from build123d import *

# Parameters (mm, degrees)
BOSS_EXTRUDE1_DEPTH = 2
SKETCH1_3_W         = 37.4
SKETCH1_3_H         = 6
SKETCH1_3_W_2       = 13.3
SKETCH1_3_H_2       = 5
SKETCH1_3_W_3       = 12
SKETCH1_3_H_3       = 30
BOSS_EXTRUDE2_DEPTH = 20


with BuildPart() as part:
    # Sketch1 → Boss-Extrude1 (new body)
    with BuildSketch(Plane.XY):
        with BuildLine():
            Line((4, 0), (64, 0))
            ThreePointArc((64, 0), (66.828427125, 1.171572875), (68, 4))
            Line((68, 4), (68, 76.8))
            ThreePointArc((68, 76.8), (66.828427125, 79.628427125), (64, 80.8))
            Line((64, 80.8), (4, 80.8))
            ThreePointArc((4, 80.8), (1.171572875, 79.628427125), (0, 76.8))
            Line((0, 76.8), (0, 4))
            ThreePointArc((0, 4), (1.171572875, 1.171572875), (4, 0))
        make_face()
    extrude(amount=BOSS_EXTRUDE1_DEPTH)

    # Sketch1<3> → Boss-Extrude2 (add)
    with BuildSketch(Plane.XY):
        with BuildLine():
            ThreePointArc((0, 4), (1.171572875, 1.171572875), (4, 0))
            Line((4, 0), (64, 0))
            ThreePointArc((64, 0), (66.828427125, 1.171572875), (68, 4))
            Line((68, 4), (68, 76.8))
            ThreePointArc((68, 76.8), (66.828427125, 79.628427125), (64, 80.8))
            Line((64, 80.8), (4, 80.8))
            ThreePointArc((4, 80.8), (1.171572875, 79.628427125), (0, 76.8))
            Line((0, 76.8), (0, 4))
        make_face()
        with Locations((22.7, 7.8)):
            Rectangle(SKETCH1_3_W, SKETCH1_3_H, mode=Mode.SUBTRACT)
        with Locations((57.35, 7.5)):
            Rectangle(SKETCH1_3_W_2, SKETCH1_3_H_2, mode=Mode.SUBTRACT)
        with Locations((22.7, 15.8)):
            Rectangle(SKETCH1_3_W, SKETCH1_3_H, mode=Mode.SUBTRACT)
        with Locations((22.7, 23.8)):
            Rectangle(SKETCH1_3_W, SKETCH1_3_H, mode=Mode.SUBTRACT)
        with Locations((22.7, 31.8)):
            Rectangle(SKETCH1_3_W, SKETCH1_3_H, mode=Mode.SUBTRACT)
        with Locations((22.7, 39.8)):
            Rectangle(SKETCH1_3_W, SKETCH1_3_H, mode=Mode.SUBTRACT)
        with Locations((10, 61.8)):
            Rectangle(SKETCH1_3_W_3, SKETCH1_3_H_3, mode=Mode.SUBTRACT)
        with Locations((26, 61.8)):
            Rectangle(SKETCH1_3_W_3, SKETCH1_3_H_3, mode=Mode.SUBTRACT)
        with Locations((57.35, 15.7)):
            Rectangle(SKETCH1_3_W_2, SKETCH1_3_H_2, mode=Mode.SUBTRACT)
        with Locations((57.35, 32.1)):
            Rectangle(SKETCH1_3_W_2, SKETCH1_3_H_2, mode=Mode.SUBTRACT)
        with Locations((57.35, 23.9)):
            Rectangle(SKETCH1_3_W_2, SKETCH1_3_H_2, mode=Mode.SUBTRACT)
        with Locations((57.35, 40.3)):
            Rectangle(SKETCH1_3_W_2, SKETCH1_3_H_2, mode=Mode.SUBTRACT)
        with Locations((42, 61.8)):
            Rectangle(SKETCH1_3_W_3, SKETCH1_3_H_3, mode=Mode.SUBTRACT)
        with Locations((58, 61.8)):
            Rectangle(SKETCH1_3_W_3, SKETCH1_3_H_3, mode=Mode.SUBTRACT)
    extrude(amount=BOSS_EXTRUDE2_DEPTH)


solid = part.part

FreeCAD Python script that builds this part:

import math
import FreeCAD as App
import Part
import Sketcher

V = App.Vector
Q = App.Units.Quantity

doc = App.newDocument("Part")
params = doc.addObject("Spreadsheet::Sheet", "Params")
for row, (alias, value) in enumerate([
    ("sketch1_radius", "4 mm"),
    ("sketch1_width", "60 mm"),
    ("sketch1_height", "72.8 mm"),
    ("pad1_length", "2 mm"),
    ("sketch2_radius", "4 mm"),
    ("sketch2_width", "60 mm"),
    ("sketch2_width2", "12 mm"),
    ("sketch2_height", "6 mm"),
    ("sketch2_height2", "5 mm"),
    ("pad2_length", "20 mm"),
], start=1):
    params.set(f"A{row}", alias)
    params.set(f"B{row}", "=" + value)
    params.setAlias(f"B{row}", alias)

body = doc.addObject("PartDesign::Body", "Body")

sketch1 = doc.addObject("Sketcher::SketchObject", "Sketch")
body.addObject(sketch1)
sketch1.AttachmentSupport = (doc.XY_Plane, [""])
sketch1.MapMode = "FlatFace"
sketch1.addGeometry(Part.LineSegment(V(4, 0, 0), V(64, 0, 0)), False)
sketch1.addGeometry(Part.ArcOfCircle(Part.Circle(V(64, 4, 0), V(0, 0, 1), 4), math.radians(-90), math.radians(0)), False)
sketch1.addGeometry(Part.LineSegment(V(68, 4, 0), V(68, 76.8, 0)), False)
sketch1.addGeometry(Part.ArcOfCircle(Part.Circle(V(64, 76.8, 0), V(0, 0, 1), 4), math.radians(0), math.radians(90)), False)
sketch1.addGeometry(Part.LineSegment(V(64, 80.8, 0), V(4, 80.8, 0)), False)
sketch1.addGeometry(Part.ArcOfCircle(Part.Circle(V(4, 76.8, 0), V(0, 0, 1), 4), math.radians(90), math.radians(180)), False)
sketch1.addGeometry(Part.LineSegment(V(0, 76.8, 0), V(0, 4, 0)), False)
sketch1.addGeometry(Part.ArcOfCircle(Part.Circle(V(4, 4, 0), V(0, 0, 1), 4), math.radians(180), math.radians(270)), False)
sketch1.addConstraint(Sketcher.Constraint("Tangent", 0, 2, 1, 1))
sketch1.addConstraint(Sketcher.Constraint("Tangent", 1, 2, 2, 1))
sketch1.addConstraint(Sketcher.Constraint("Tangent", 2, 2, 3, 1))
sketch1.addConstraint(Sketcher.Constraint("Tangent", 3, 2, 4, 1))
sketch1.addConstraint(Sketcher.Constraint("Tangent", 4, 2, 5, 1))
sketch1.addConstraint(Sketcher.Constraint("Tangent", 5, 2, 6, 1))
sketch1.addConstraint(Sketcher.Constraint("Tangent", 6, 2, 7, 1))
sketch1.addConstraint(Sketcher.Constraint("Tangent", 7, 2, 0, 1))
sketch1.addConstraint(Sketcher.Constraint("Horizontal", 0))
sketch1.addConstraint(Sketcher.Constraint("Vertical", 2))
sketch1.addConstraint(Sketcher.Constraint("Horizontal", 4))
sketch1.addConstraint(Sketcher.Constraint("Vertical", 6))
sketch1.addConstraint(Sketcher.Constraint("Equal", 1, 3))
sketch1.addConstraint(Sketcher.Constraint("Equal", 3, 5))
sketch1.addConstraint(Sketcher.Constraint("Equal", 5, 7))
sketch1.addConstraint(Sketcher.Constraint("PointOnObject", 0, 2, -1))
sketch1.addConstraint(Sketcher.Constraint("PointOnObject", 5, 2, -2))
sketch1.addConstraint(Sketcher.Constraint("Radius", 1, Q("4 mm")))
sketch1.addConstraint(Sketcher.Constraint("DistanceX", 0, 1, 0, 2, Q("60 mm")))
sketch1.addConstraint(Sketcher.Constraint("DistanceY", 2, 1, 2, 2, Q("72.8 mm")))
sketch1.setExpression("Constraints[17]", "Params.sketch1_radius")
sketch1.setExpression("Constraints[18]", "Params.sketch1_width")
sketch1.setExpression("Constraints[19]", "Params.sketch1_height")
pad1 = doc.addObject("PartDesign::Pad", "Pad")
body.addObject(pad1)
pad1.Profile = sketch1
pad1.setExpression("Length", "Params.pad1_length")

sketch2 = doc.addObject("Sketcher::SketchObject", "Sketch001")
body.addObject(sketch2)
sketch2.AttachmentSupport = (doc.XY_Plane, [""])
sketch2.MapMode = "FlatFace"
sketch2.addGeometry(Part.ArcOfCircle(Part.Circle(V(4, 4, 0), V(0, 0, 1), 4), math.radians(180), math.radians(270)), False)
sketch2.addGeometry(Part.LineSegment(V(4, 0, 0), V(64, 0, 0)), False)
sketch2.addGeometry(Part.ArcOfCircle(Part.Circle(V(64, 4, 0), V(0, 0, 1), 4), math.radians(-90), math.radians(0)), False)
sketch2.addGeometry(Part.LineSegment(V(68, 4, 0), V(68, 76.8, 0)), False)
sketch2.addGeometry(Part.ArcOfCircle(Part.Circle(V(64, 76.8, 0), V(0, 0, 1), 4), math.radians(0), math.radians(90)), False)
sketch2.addGeometry(Part.LineSegment(V(64, 80.8, 0), V(4, 80.8, 0)), False)
sketch2.addGeometry(Part.ArcOfCircle(Part.Circle(V(4, 76.8, 0), V(0, 0, 1), 4), math.radians(90), math.radians(180)), False)
sketch2.addGeometry(Part.LineSegment(V(0, 76.8, 0), V(0, 4, 0)), False)
sketch2.addGeometry(Part.LineSegment(V(41.4, 4.8, 0), V(4, 4.8, 0)), False)
sketch2.addGeometry(Part.LineSegment(V(4, 4.8, 0), V(4, 10.8, 0)), False)
sketch2.addGeometry(Part.LineSegment(V(4, 10.8, 0), V(41.4, 10.8, 0)), False)
sketch2.addGeometry(Part.LineSegment(V(41.4, 10.8, 0), V(41.4, 4.8, 0)), False)
sketch2.addGeometry(Part.LineSegment(V(41.4, 12.8, 0), V(4, 12.8, 0)), False)
sketch2.addGeometry(Part.LineSegment(V(4, 12.8, 0), V(4, 18.8, 0)), False)
sketch2.addGeometry(Part.LineSegment(V(4, 18.8, 0), V(41.4, 18.8, 0)), False)
sketch2.addGeometry(Part.LineSegment(V(41.4, 18.8, 0), V(41.4, 12.8, 0)), False)
sketch2.addGeometry(Part.LineSegment(V(41.4, 20.8, 0), V(4, 20.8, 0)), False)
sketch2.addGeometry(Part.LineSegment(V(4, 20.8, 0), V(4, 26.8, 0)), False)
sketch2.addGeometry(Part.LineSegment(V(4, 26.8, 0), V(41.4, 26.8, 0)), False)
sketch2.addGeometry(Part.LineSegment(V(41.4, 26.8, 0), V(41.4, 20.8, 0)), False)
sketch2.addGeometry(Part.LineSegment(V(41.4, 28.8, 0), V(4, 28.8, 0)), False)
sketch2.addGeometry(Part.LineSegment(V(4, 28.8, 0), V(4, 34.8, 0)), False)
sketch2.addGeometry(Part.LineSegment(V(4, 34.8, 0), V(41.4, 34.8, 0)), False)
sketch2.addGeometry(Part.LineSegment(V(41.4, 34.8, 0), V(41.4, 28.8, 0)), False)
sketch2.addGeometry(Part.LineSegment(V(41.4, 36.8, 0), V(4, 36.8, 0)), False)
sketch2.addGeometry(Part.LineSegment(V(4, 36.8, 0), V(4, 42.8, 0)), False)
sketch2.addGeometry(Part.LineSegment(V(4, 42.8, 0), V(41.4, 42.8, 0)), False)
sketch2.addGeometry(Part.LineSegment(V(41.4, 42.8, 0), V(41.4, 36.8, 0)), False)
sketch2.addGeometry(Part.LineSegment(V(64, 5, 0), V(50.7, 5, 0)), False)
sketch2.addGeometry(Part.LineSegment(V(50.7, 5, 0), V(50.7, 10, 0)), False)
sketch2.addGeometry(Part.LineSegment(V(50.7, 10, 0), V(64, 10, 0)), False)
sketch2.addGeometry(Part.LineSegment(V(64, 10, 0), V(64, 5, 0)), False)
sketch2.addGeometry(Part.LineSegment(V(64, 13.2, 0), V(50.7, 13.2, 0)), False)
sketch2.addGeometry(Part.LineSegment(V(50.7, 13.2, 0), V(50.7, 18.2, 0)), False)
sketch2.addGeometry(Part.LineSegment(V(50.7, 18.2, 0), V(64, 18.2, 0)), False)
sketch2.addGeometry(Part.LineSegment(V(64, 18.2, 0), V(64, 13.2, 0)), False)
sketch2.addGeometry(Part.LineSegment(V(64, 21.4, 0), V(50.7, 21.4, 0)), False)
sketch2.addGeometry(Part.LineSegment(V(50.7, 21.4, 0), V(50.7, 26.4, 0)), False)
sketch2.addGeometry(Part.LineSegment(V(50.7, 26.4, 0), V(64, 26.4, 0)), False)
sketch2.addGeometry(Part.LineSegment(V(64, 26.4, 0), V(64, 21.4, 0)), False)
sketch2.addGeometry(Part.LineSegment(V(64, 29.6, 0), V(50.7, 29.6, 0)), False)
sketch2.addGeometry(Part.LineSegment(V(50.7, 29.6, 0), V(50.7, 34.6, 0)), False)
sketch2.addGeometry(Part.LineSegment(V(50.7, 34.6, 0), V(64, 34.6, 0)), False)
sketch2.addGeometry(Part.LineSegment(V(64, 34.6, 0), V(64, 29.6, 0)), False)
sketch2.addGeometry(Part.LineSegment(V(64, 37.8, 0), V(50.7, 37.8, 0)), False)
sketch2.addGeometry(Part.LineSegment(V(50.7, 37.8, 0), V(50.7, 42.8, 0)), False)
sketch2.addGeometry(Part.LineSegment(V(50.7, 42.8, 0), V(64, 42.8, 0)), False)
sketch2.addGeometry(Part.LineSegment(V(64, 42.8, 0), V(64, 37.8, 0)), False)
sketch2.addGeometry(Part.LineSegment(V(16, 46.8, 0), V(4, 46.8, 0)), False)
sketch2.addGeometry(Part.LineSegment(V(4, 46.8, 0), V(4, 76.8, 0)), False)
sketch2.addGeometry(Part.LineSegment(V(4, 76.8, 0), V(16, 76.8, 0)), False)
sketch2.addGeometry(Part.LineSegment(V(16, 76.8, 0), V(16, 46.8, 0)), False)
sketch2.addGeometry(Part.LineSegment(V(32, 46.8, 0), V(20, 46.8, 0)), False)
sketch2.addGeometry(Part.LineSegment(V(20, 46.8, 0), V(20, 76.8, 0)), False)
sketch2.addGeometry(Part.LineSegment(V(20, 76.8, 0), V(32, 76.8, 0)), False)
sketch2.addGeometry(Part.LineSegment(V(32, 76.8, 0), V(32, 46.8, 0)), False)
sketch2.addGeometry(Part.LineSegment(V(48, 46.8, 0), V(36, 46.8, 0)), False)
sketch2.addGeometry(Part.LineSegment(V(36, 46.8, 0), V(36, 76.8, 0)), False)
sketch2.addGeometry(Part.LineSegment(V(36, 76.8, 0), V(48, 76.8, 0)), False)
sketch2.addGeometry(Part.LineSegment(V(48, 76.8, 0), V(48, 46.8, 0)), False)
sketch2.addGeometry(Part.LineSegment(V(64, 46.8, 0), V(52, 46.8, 0)), False)
sketch2.addGeometry(Part.LineSegment(V(52, 46.8, 0), V(52, 76.8, 0)), False)
sketch2.addGeometry(Part.LineSegment(V(52, 76.8, 0), V(64, 76.8, 0)), False)
sketch2.addGeometry(Part.LineSegment(V(64, 76.8, 0), V(64, 46.8, 0)), False)
sketch2.addConstraint(Sketcher.Constraint("Tangent", 0, 2, 1, 1))
sketch2.addConstraint(Sketcher.Constraint("Tangent", 1, 2, 2, 1))
sketch2.addConstraint(Sketcher.Constraint("Tangent", 2, 2, 3, 1))
sketch2.addConstraint(Sketcher.Constraint("Tangent", 3, 2, 4, 1))
sketch2.addConstraint(Sketcher.Constraint("Tangent", 4, 2, 5, 1))
sketch2.addConstraint(Sketcher.Constraint("Tangent", 5, 2, 6, 1))
sketch2.addConstraint(Sketcher.Constraint("Tangent", 6, 2, 7, 1))
sketch2.addConstraint(Sketcher.Constraint("Tangent", 7, 2, 0, 1))
sketch2.addConstraint(Sketcher.Constraint("Coincident", 8, 2, 9, 1))
sketch2.addConstraint(Sketcher.Constraint("Coincident", 9, 2, 10, 1))
sketch2.addConstraint(Sketcher.Constraint("Coincident", 10, 2, 11, 1))
sketch2.addConstraint(Sketcher.Constraint("Coincident", 11, 2, 8, 1))
sketch2.addConstraint(Sketcher.Constraint("Coincident", 12, 2, 13, 1))
sketch2.addConstraint(Sketcher.Constraint("Coincident", 13, 2, 14, 1))
sketch2.addConstraint(Sketcher.Constraint("Coincident", 14, 2, 15, 1))
sketch2.addConstraint(Sketcher.Constraint("Coincident", 15, 2, 12, 1))
sketch2.addConstraint(Sketcher.Constraint("Coincident", 16, 2, 17, 1))
sketch2.addConstraint(Sketcher.Constraint("Coincident", 17, 2, 18, 1))
sketch2.addConstraint(Sketcher.Constraint("Coincident", 18, 2, 19, 1))
sketch2.addConstraint(Sketcher.Constraint("Coincident", 19, 2, 16, 1))
sketch2.addConstraint(Sketcher.Constraint("Coincident", 20, 2, 21, 1))
sketch2.addConstraint(Sketcher.Constraint("Coincident", 21, 2, 22, 1))
sketch2.addConstraint(Sketcher.Constraint("Coincident", 22, 2, 23, 1))
sketch2.addConstraint(Sketcher.Constraint("Coincident", 23, 2, 20, 1))
sketch2.addConstraint(Sketcher.Constraint("Coincident", 24, 2, 25, 1))
sketch2.addConstraint(Sketcher.Constraint("Coincident", 25, 2, 26, 1))
sketch2.addConstraint(Sketcher.Constraint("Coincident", 26, 2, 27, 1))
sketch2.addConstraint(Sketcher.Constraint("Coincident", 27, 2, 24, 1))
sketch2.addConstraint(Sketcher.Constraint("Coincident", 28, 2, 29, 1))
sketch2.addConstraint(Sketcher.Constraint("Coincident", 29, 2, 30, 1))
sketch2.addConstraint(Sketcher.Constraint("Coincident", 30, 2, 31, 1))
sketch2.addConstraint(Sketcher.Constraint("Coincident", 31, 2, 28, 1))
sketch2.addConstraint(Sketcher.Constraint("Coincident", 32, 2, 33, 1))
sketch2.addConstraint(Sketcher.Constraint("Coincident", 33, 2, 34, 1))
sketch2.addConstraint(Sketcher.Constraint("Coincident", 34, 2, 35, 1))
sketch2.addConstraint(Sketcher.Constraint("Coincident", 35, 2, 32, 1))
sketch2.addConstraint(Sketcher.Constraint("Coincident", 36, 2, 37, 1))
sketch2.addConstraint(Sketcher.Constraint("Coincident", 37, 2, 38, 1))
sketch2.addConstraint(Sketcher.Constraint("Coincident", 38, 2, 39, 1))
sketch2.addConstraint(Sketcher.Constraint("Coincident", 39, 2, 36, 1))
sketch2.addConstraint(Sketcher.Constraint("Coincident", 40, 2, 41, 1))
sketch2.addConstraint(Sketcher.Constraint("Coincident", 41, 2, 42, 1))
sketch2.addConstraint(Sketcher.Constraint("Coincident", 42, 2, 43, 1))
sketch2.addConstraint(Sketcher.Constraint("Coincident", 43, 2, 40, 1))
sketch2.addConstraint(Sketcher.Constraint("Coincident", 44, 2, 45, 1))
sketch2.addConstraint(Sketcher.Constraint("Coincident", 45, 2, 46, 1))
sketch2.addConstraint(Sketcher.Constraint("Coincident", 46, 2, 47, 1))
sketch2.addConstraint(Sketcher.Constraint("Coincident", 47, 2, 44, 1))
sketch2.addConstraint(Sketcher.Constraint("Coincident", 48, 2, 49, 1))
sketch2.addConstraint(Sketcher.Constraint("Coincident", 49, 2, 50, 1))
sketch2.addConstraint(Sketcher.Constraint("Coincident", 50, 2, 51, 1))
sketch2.addConstraint(Sketcher.Constraint("Coincident", 51, 2, 48, 1))
sketch2.addConstraint(Sketcher.Constraint("Coincident", 52, 2, 53, 1))
sketch2.addConstraint(Sketcher.Constraint("Coincident", 53, 2, 54, 1))
sketch2.addConstraint(Sketcher.Constraint("Coincident", 54, 2, 55, 1))
sketch2.addConstraint(Sketcher.Constraint("Coincident", 55, 2, 52, 1))
sketch2.addConstraint(Sketcher.Constraint("Coincident", 56, 2, 57, 1))
sketch2.addConstraint(Sketcher.Constraint("Coincident", 57, 2, 58, 1))
sketch2.addConstraint(Sketcher.Constraint("Coincident", 58, 2, 59, 1))
sketch2.addConstraint(Sketcher.Constraint("Coincident", 59, 2, 56, 1))
sketch2.addConstraint(Sketcher.Constraint("Coincident", 60, 2, 61, 1))
sketch2.addConstraint(Sketcher.Constraint("Coincident", 61, 2, 62, 1))
sketch2.addConstraint(Sketcher.Constraint("Coincident", 62, 2, 63, 1))
sketch2.addConstraint(Sketcher.Constraint("Coincident", 63, 2, 60, 1))
sketch2.addConstraint(Sketcher.Constraint("Horizontal", 1))
sketch2.addConstraint(Sketcher.Constraint("Vertical", 3))
sketch2.addConstraint(Sketcher.Constraint("Horizontal", 5))
sketch2.addConstraint(Sketcher.Constraint("Vertical", 7))
sketch2.addConstraint(Sketcher.Constraint("Horizontal", 8))
sketch2.addConstraint(Sketcher.Constraint("Vertical", 9))
sketch2.addConstraint(Sketcher.Constraint("Horizontal", 10))
sketch2.addConstraint(Sketcher.Constraint("Vertical", 11))
sketch2.addConstraint(Sketcher.Constraint("Horizontal", 12))
sketch2.addConstraint(Sketcher.Constraint("Vertical", 13))
sketch2.addConstraint(Sketcher.Constraint("Horizontal", 14))
sketch2.addConstraint(Sketcher.Constraint("Vertical", 15))
sketch2.addConstraint(Sketcher.Constraint("Horizontal", 16))
sketch2.addConstraint(Sketcher.Constraint("Vertical", 17))
sketch2.addConstraint(Sketcher.Constraint("Horizontal", 18))
sketch2.addConstraint(Sketcher.Constraint("Vertical", 19))
sketch2.addConstraint(Sketcher.Constraint("Horizontal", 20))
sketch2.addConstraint(Sketcher.Constraint("Vertical", 21))
sketch2.addConstraint(Sketcher.Constraint("Horizontal", 22))
sketch2.addConstraint(Sketcher.Constraint("Vertical", 23))
sketch2.addConstraint(Sketcher.Constraint("Horizontal", 24))
sketch2.addConstraint(Sketcher.Constraint("Vertical", 25))
sketch2.addConstraint(Sketcher.Constraint("Horizontal", 26))
sketch2.addConstraint(Sketcher.Constraint("Vertical", 27))
sketch2.addConstraint(Sketcher.Constraint("Horizontal", 28))
sketch2.addConstraint(Sketcher.Constraint("Vertical", 29))
sketch2.addConstraint(Sketcher.Constraint("Horizontal", 30))
sketch2.addConstraint(Sketcher.Constraint("Vertical", 31))
sketch2.addConstraint(Sketcher.Constraint("Horizontal", 32))
sketch2.addConstraint(Sketcher.Constraint("Vertical", 33))
sketch2.addConstraint(Sketcher.Constraint("Horizontal", 34))
sketch2.addConstraint(Sketcher.Constraint("Vertical", 35))
sketch2.addConstraint(Sketcher.Constraint("Horizontal", 36))
sketch2.addConstraint(Sketcher.Constraint("Vertical", 37))
sketch2.addConstraint(Sketcher.Constraint("Horizontal", 38))
sketch2.addConstraint(Sketcher.Constraint("Vertical", 39))
sketch2.addConstraint(Sketcher.Constraint("Horizontal", 40))
sketch2.addConstraint(Sketcher.Constraint("Vertical", 41))
sketch2.addConstraint(Sketcher.Constraint("Horizontal", 42))
sketch2.addConstraint(Sketcher.Constraint("Vertical", 43))
sketch2.addConstraint(Sketcher.Constraint("Horizontal", 44))
sketch2.addConstraint(Sketcher.Constraint("Vertical", 45))
sketch2.addConstraint(Sketcher.Constraint("Horizontal", 46))
sketch2.addConstraint(Sketcher.Constraint("Vertical", 47))
sketch2.addConstraint(Sketcher.Constraint("Horizontal", 48))
sketch2.addConstraint(Sketcher.Constraint("Vertical", 49))
sketch2.addConstraint(Sketcher.Constraint("Horizontal", 50))
sketch2.addConstraint(Sketcher.Constraint("Vertical", 51))
sketch2.addConstraint(Sketcher.Constraint("Horizontal", 52))
sketch2.addConstraint(Sketcher.Constraint("Vertical", 53))
sketch2.addConstraint(Sketcher.Constraint("Horizontal", 54))
sketch2.addConstraint(Sketcher.Constraint("Vertical", 55))
sketch2.addConstraint(Sketcher.Constraint("Horizontal", 56))
sketch2.addConstraint(Sketcher.Constraint("Vertical", 57))
sketch2.addConstraint(Sketcher.Constraint("Horizontal", 58))
sketch2.addConstraint(Sketcher.Constraint("Vertical", 59))
sketch2.addConstraint(Sketcher.Constraint("Horizontal", 60))
sketch2.addConstraint(Sketcher.Constraint("Vertical", 61))
sketch2.addConstraint(Sketcher.Constraint("Horizontal", 62))
sketch2.addConstraint(Sketcher.Constraint("Vertical", 63))
sketch2.addConstraint(Sketcher.Constraint("Coincident", 49, 2, 6, 3))
sketch2.addConstraint(Sketcher.Constraint("Coincident", 62, 2, 4, 3))
sketch2.addConstraint(Sketcher.Constraint("Equal", 0, 2))
sketch2.addConstraint(Sketcher.Constraint("Equal", 2, 4))
sketch2.addConstraint(Sketcher.Constraint("Equal", 4, 6))
sketch2.addConstraint(Sketcher.Constraint("PointOnObject", 0, 2, -1))
sketch2.addConstraint(Sketcher.Constraint("PointOnObject", 6, 2, -2))
sketch2.addConstraint(Sketcher.Constraint("Horizontal", 26, 2, 45, 2))
sketch2.addConstraint(Sketcher.Constraint("Horizontal", 51, 2, 52, 2))
sketch2.addConstraint(Sketcher.Constraint("Horizontal", 50, 2, 53, 2))
sketch2.addConstraint(Sketcher.Constraint("Horizontal", 55, 2, 56, 2))
sketch2.addConstraint(Sketcher.Constraint("Horizontal", 54, 2, 57, 2))
sketch2.addConstraint(Sketcher.Constraint("Horizontal", 59, 2, 60, 2))
sketch2.addConstraint(Sketcher.Constraint("Vertical", 5, 2, 8, 2))
sketch2.addConstraint(Sketcher.Constraint("Vertical", 9, 2, 12, 2))
sketch2.addConstraint(Sketcher.Constraint("Vertical", 11, 2, 14, 2))
sketch2.addConstraint(Sketcher.Constraint("Vertical", 13, 2, 16, 2))
sketch2.addConstraint(Sketcher.Constraint("Vertical", 15, 2, 18, 2))
sketch2.addConstraint(Sketcher.Constraint("Vertical", 17, 2, 20, 2))
sketch2.addConstraint(Sketcher.Constraint("Vertical", 19, 2, 22, 2))
sketch2.addConstraint(Sketcher.Constraint("Vertical", 21, 2, 24, 2))
sketch2.addConstraint(Sketcher.Constraint("Vertical", 23, 2, 26, 2))
sketch2.addConstraint(Sketcher.Constraint("Vertical", 4, 2, 30, 2))
sketch2.addConstraint(Sketcher.Constraint("Vertical", 29, 2, 32, 2))
sketch2.addConstraint(Sketcher.Constraint("Vertical", 31, 2, 34, 2))
sketch2.addConstraint(Sketcher.Constraint("Vertical", 33, 2, 36, 2))
sketch2.addConstraint(Sketcher.Constraint("Vertical", 35, 2, 38, 2))
sketch2.addConstraint(Sketcher.Constraint("Vertical", 37, 2, 40, 2))
sketch2.addConstraint(Sketcher.Constraint("Vertical", 39, 2, 42, 2))
sketch2.addConstraint(Sketcher.Constraint("Vertical", 41, 2, 44, 2))
sketch2.addConstraint(Sketcher.Constraint("Vertical", 43, 2, 46, 2))
sketch2.addConstraint(Sketcher.Constraint("Equal", 50, 52))
sketch2.addConstraint(Sketcher.Constraint("Equal", 54, 56))
sketch2.addConstraint(Sketcher.Constraint("Equal", 58, 60))
sketch2.addConstraint(Sketcher.Constraint("Equal", 11, 13))
sketch2.addConstraint(Sketcher.Constraint("Equal", 15, 17))
sketch2.addConstraint(Sketcher.Constraint("Equal", 19, 21))
sketch2.addConstraint(Sketcher.Constraint("Equal", 23, 25))
sketch2.addConstraint(Sketcher.Constraint("Equal", 31, 33))
sketch2.addConstraint(Sketcher.Constraint("Equal", 35, 37))
sketch2.addConstraint(Sketcher.Constraint("Equal", 39, 41))
sketch2.addConstraint(Sketcher.Constraint("Equal", 43, 45))
sketch2.addConstraint(Sketcher.Constraint("Radius", 0, Q("4 mm")))
sketch2.addConstraint(Sketcher.Constraint("DistanceX", 1, 1, 1, 2, Q("60 mm")))
sketch2.addConstraint(Sketcher.Constraint("DistanceX", 48, 2, 48, 1, Q("12 mm")))
sketch2.addConstraint(Sketcher.Constraint("DistanceY", 9, 1, 9, 2, Q("6 mm")))
sketch2.addConstraint(Sketcher.Constraint("DistanceY", 29, 1, 29, 2, Q("5 mm")))
sketch2.addConstraint(Sketcher.Constraint("DistanceY", 49, 1, 49, 2, Q("30 mm")))
sketch2.addConstraint(Sketcher.Constraint("DistanceX", 8, 2, 8, 1, Q("37.4 mm")))
sketch2.addConstraint(Sketcher.Constraint("DistanceX", 28, 2, 28, 1, Q("13.3 mm")))
sketch2.addConstraint(Sketcher.Constraint("DistanceY", 3, 1, 3, 2, Q("72.8 mm")))
sketch2.addConstraint(Sketcher.Constraint("DistanceY", -1, 1, 28, 2, Q("5 mm")))
sketch2.addConstraint(Sketcher.Constraint("DistanceX", -1, 1, 52, 2, Q("20 mm")))
sketch2.addConstraint(Sketcher.Constraint("DistanceX", -1, 1, 56, 2, Q("36 mm")))
sketch2.addConstraint(Sketcher.Constraint("DistanceY", -1, 1, 8, 2, Q("4.8 mm")))
sketch2.addConstraint(Sketcher.Constraint("DistanceY", -1, 1, 12, 2, Q("12.8 mm")))
sketch2.addConstraint(Sketcher.Constraint("DistanceY", -1, 1, 16, 2, Q("20.8 mm")))
sketch2.addConstraint(Sketcher.Constraint("DistanceY", -1, 1, 20, 2, Q("28.8 mm")))
sketch2.addConstraint(Sketcher.Constraint("DistanceY", -1, 1, 24, 2, Q("36.8 mm")))
sketch2.addConstraint(Sketcher.Constraint("DistanceY", -1, 1, 32, 2, Q("13.2 mm")))
sketch2.addConstraint(Sketcher.Constraint("DistanceY", -1, 1, 36, 2, Q("21.4 mm")))
sketch2.addConstraint(Sketcher.Constraint("DistanceY", -1, 1, 40, 2, Q("29.6 mm")))
sketch2.setExpression("Constraints[166]", "Params.sketch2_radius")
sketch2.setExpression("Constraints[167]", "Params.sketch2_width")
sketch2.setExpression("Constraints[168]", "Params.sketch2_width2")
sketch2.setExpression("Constraints[169]", "Params.sketch2_height")
sketch2.setExpression("Constraints[170]", "Params.sketch2_height2")
pad2 = doc.addObject("PartDesign::Pad", "Pad001")
body.addObject(pad2)
pad2.Profile = sketch2
pad2.setExpression("Length", "Params.pad2_length")

doc.recompute()
